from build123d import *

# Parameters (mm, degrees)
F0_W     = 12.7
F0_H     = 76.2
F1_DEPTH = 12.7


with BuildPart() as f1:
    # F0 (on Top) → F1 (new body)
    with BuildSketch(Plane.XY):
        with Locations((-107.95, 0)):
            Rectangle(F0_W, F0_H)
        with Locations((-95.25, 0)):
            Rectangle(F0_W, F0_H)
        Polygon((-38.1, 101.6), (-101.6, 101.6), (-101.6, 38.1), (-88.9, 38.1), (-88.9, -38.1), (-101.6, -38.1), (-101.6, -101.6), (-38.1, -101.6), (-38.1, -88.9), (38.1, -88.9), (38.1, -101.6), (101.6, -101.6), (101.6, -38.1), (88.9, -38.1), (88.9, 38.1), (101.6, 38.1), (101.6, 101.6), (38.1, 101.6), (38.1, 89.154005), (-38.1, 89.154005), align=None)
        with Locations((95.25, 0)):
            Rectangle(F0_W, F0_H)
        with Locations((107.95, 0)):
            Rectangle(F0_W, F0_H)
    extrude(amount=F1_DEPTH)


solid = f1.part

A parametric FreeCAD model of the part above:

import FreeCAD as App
import Part
import Sketcher

V = App.Vector
Q = App.Units.Quantity

doc = App.newDocument("Part")
body = doc.addObject("PartDesign::Body", "Body")

# Sketch on XY plane
sketch1 = body.newObject("Sketcher::SketchObject", "Sketch")
sketch1.AttachmentSupport = (doc.getObject("XY_Plane"), [""])
sketch1.MapMode = "FlatFace"
sketch1.addGeometry([
    Part.LineSegment(V(-114, 38, 0), V(-114, -38, 0)),  # 0
    Part.LineSegment(V(-114, -38, 0), V(-102, -38, 0)),  # 1
    Part.LineSegment(V(-102, -38, 0), V(-102, -102, 0)),  # 2
    Part.LineSegment(V(-102, -102, 0), V(-38, -102, 0)),  # 3
    Part.LineSegment(V(-38, -102, 0), V(-38, -89, 0)),  # 4
    Part.LineSegment(V(-38, -89, 0), V(38, -89, 0)),  # 5
    Part.LineSegment(V(38, -89, 0), V(38, -102, 0)),  # 6
    Part.LineSegment(V(38, -102, 0), V(102, -102, 0)),  # 7
    Part.LineSegment(V(102, -102, 0), V(102, -38, 0)),  # 8
    Part.LineSegment(V(102, -38, 0), V(114, -38, 0)),  # 9
    Part.LineSegment(V(114, -38, 0), V(114, 38, 0)),  # 10
    Part.LineSegment(V(114, 38, 0), V(102, 38, 0)),  # 11
    Part.LineSegment(V(102, 38, 0), V(102, 102, 0)),  # 12
    Part.LineSegment(V(102, 102, 0), V(38, 102, 0)),  # 13
    Part.LineSegment(V(38, 102, 0), V(38, 89, 0)),  # 14
    Part.LineSegment(V(38, 89, 0), V(-38, 89, 0)),  # 15
    Part.LineSegment(V(-38, 89, 0), V(-38, 102, 0)),  # 16
    Part.LineSegment(V(-38, 102, 0), V(-102, 102, 0)),  # 17
    Part.LineSegment(V(-102, 102, 0), V(-102, 38, 0)),  # 18
    Part.LineSegment(V(-102, 38, 0), V(-114, 38, 0)),  # 19
], False)
sketch1.addConstraint([
    Sketcher.Constraint("Coincident", 0, 2, 1, 1),
    Sketcher.Constraint("Coincident", 1, 2, 2, 1),
    Sketcher.Constraint("Coincident", 2, 2, 3, 1),
    Sketcher.Constraint("Coincident", 3, 2, 4, 1),
    Sketcher.Constraint("Coincident", 4, 2, 5, 1),
    Sketcher.Constraint("Coincident", 5, 2, 6, 1),
    Sketcher.Constraint("Coincident", 6, 2, 7, 1),
    Sketcher.Constraint("Coincident", 7, 2, 8, 1),
    Sketcher.Constraint("Coincident", 8, 2, 9, 1),
    Sketcher.Constraint("Coincident", 9, 2, 10, 1),
    Sketcher.Constraint("Coincident", 10, 2, 11, 1),
    Sketcher.Constraint("Coincident", 11, 2, 12, 1),
    Sketcher.Constraint("Coincident", 12, 2, 13, 1),
    Sketcher.Constraint("Coincident", 13, 2, 14, 1),
    Sketcher.Constraint("Coincident", 14, 2, 15, 1),
    Sketcher.Constraint("Coincident", 15, 2, 16, 1),
    Sketcher.Constraint("Coincident", 16, 2, 17, 1),
    Sketcher.Constraint("Coincident", 17, 2, 18, 1),
    Sketcher.Constraint("Coincident", 18, 2, 19, 1),
    Sketcher.Constraint("Coincident", 19, 2, 0, 1),
    Sketcher.Constraint("Vertical", 0),
    Sketcher.Constraint("Horizontal", 1),
    Sketcher.Constraint("Vertical", 2),
    Sketcher.Constraint("Horizontal", 3),
    Sketcher.Constraint("Vertical", 4),
    Sketcher.Constraint("Horizontal", 5),
    Sketcher.Constraint("Vertical", 6),
    Sketcher.Constraint("Horizontal", 7),
    Sketcher.Constraint("Vertical", 8),
    Sketcher.Constraint("Horizontal", 9),
    Sketcher.Constraint("Vertical", 10),
    Sketcher.Constraint("Horizontal", 11),
    Sketcher.Constraint("Vertical", 12),
    Sketcher.Constraint("Horizontal", 13),
    Sketcher.Constraint("Vertical", 14),
    Sketcher.Constraint("Horizontal", 15),
    Sketcher.Constraint("Vertical", 16),
    Sketcher.Constraint("Horizontal", 17),
    Sketcher.Constraint("Vertical", 18),
    Sketcher.Constraint("Horizontal", 19),
    Sketcher.Constraint("Symmetric", 0, 2, 10, 2, -1, 1),
    Sketcher.Constraint("Symmetric", 2, 2, 12, 2, -1, 1),
    Sketcher.Constraint("Symmetric", 6, 2, 16, 2, -1, 1),
    Sketcher.Constraint("Symmetric", 8, 2, 18, 2, -1, 1),
    Sketcher.Constraint("Symmetric", 3, 2, 6, 2, -2),
    Sketcher.Constraint("Symmetric", 1, 2, 8, 2, -2),
    Sketcher.Constraint("Vertical", 6, 2, 13, 2),
    Sketcher.Constraint("Equal", 15, 0),
    Sketcher.Constraint("Equal", 17, 2),
    Sketcher.Constraint("Equal", 19, 4),
    Sketcher.Constraint("DistanceX", 5, 1, 5, 2, Q("3 in")),
    Sketcher.Constraint("DistanceX", 1, 1, 1, 2, Q("0.5 in")),
    Sketcher.Constraint("DistanceX", 3, 1, 3, 2, Q("2.5 in")),
    Sketcher.Constraint("DistanceY", 14, 2, 14, 1, Q("0.4899998 in")),
])
pad1 = body.newObject("PartDesign::Pad", "Pad")
pad1.Profile = sketch1
pad1.Length = Q("0.5 in")

doc.recompute()
